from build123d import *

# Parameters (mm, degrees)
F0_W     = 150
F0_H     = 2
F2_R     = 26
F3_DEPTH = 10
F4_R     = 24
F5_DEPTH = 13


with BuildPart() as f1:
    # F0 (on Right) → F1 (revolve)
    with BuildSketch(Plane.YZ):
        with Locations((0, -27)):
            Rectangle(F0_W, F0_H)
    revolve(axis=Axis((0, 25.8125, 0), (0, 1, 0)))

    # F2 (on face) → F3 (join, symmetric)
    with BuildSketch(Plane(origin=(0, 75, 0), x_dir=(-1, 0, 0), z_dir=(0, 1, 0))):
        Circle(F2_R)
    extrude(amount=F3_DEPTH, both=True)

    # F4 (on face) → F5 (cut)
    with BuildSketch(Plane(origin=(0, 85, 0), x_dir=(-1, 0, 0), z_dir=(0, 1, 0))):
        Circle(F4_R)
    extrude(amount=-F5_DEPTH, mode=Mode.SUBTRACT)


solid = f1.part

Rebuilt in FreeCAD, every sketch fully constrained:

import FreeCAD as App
import Part
import Sketcher

V = App.Vector

doc = App.newDocument("Part")
body = doc.addObject("PartDesign::Body", "Body")

# Sketch on YZ plane
sketch1 = body.newObject("Sketcher::SketchObject", "Sketch")
sketch1.AttachmentSupport = (doc.getObject("YZ_Plane"), [""])
sketch1.MapMode = "FlatFace"
sketch1.addGeometry(Part.LineSegment(V(-75, -26, 0), V(-75, -28, 0)), False)
sketch1.addGeometry(Part.LineSegment(V(-75, -28, 0), V(75, -28, 0)), False)
sketch1.addGeometry(Part.LineSegment(V(75, -28, 0), V(75, -26, 0)), False)
sketch1.addGeometry(Part.LineSegment(V(75, -26, 0), V(-75, -26, 0)), False)
sketch1.addConstraint(Sketcher.Constraint("Coincident", 0, 2, 1, 1))
sketch1.addConstraint(Sketcher.Constraint("Coincident", 1, 2, 2, 1))
sketch1.addConstraint(Sketcher.Constraint("Coincident", 2, 2, 3, 1))
sketch1.addConstraint(Sketcher.Constraint("Coincident", 3, 2, 0, 1))
sketch1.addConstraint(Sketcher.Constraint("Vertical", 0))
sketch1.addConstraint(Sketcher.Constraint("Horizontal", 1))
sketch1.addConstraint(Sketcher.Constraint("Vertical", 2))
sketch1.addConstraint(Sketcher.Constraint("Horizontal", 3))
sketch1.addConstraint(Sketcher.Constraint("DistanceX", 1, 1, 1, 2, 150.0))
sketch1.addConstraint(Sketcher.Constraint("DistanceY", 0, 2, 0, 1, 2.0))
sketch1.addConstraint(Sketcher.Constraint("DistanceX", 0, 2, -1, 1, 75.0))
sketch1.addConstraint(Sketcher.Constraint("DistanceY", 0, 2, -1, 1, 28.0))
revolution = body.newObject("PartDesign::Revolution", "Revolution")
revolution.Profile = sketch1
revolution.ReferenceAxis = (sketch1, ["H_Axis"])
revolution.Angle = 360

# Sketch on XZ plane
sketch2 = body.newObject("Sketcher::SketchObject", "Sketch001")
sketch2.AttachmentSupport = (doc.getObject("XZ_Plane"), [""])
sketch2.MapMode = "FlatFace"
sketch2.AttachmentOffset = App.Placement(V(0, 0, -75), App.Rotation())
sketch2.addGeometry(Part.Circle(V(0, 0, 0), V(0, 0, 1), 26), False)
sketch2.addConstraint(Sketcher.Constraint("Coincident", 0, 3, -1, 1))
sketch2.addConstraint(Sketcher.Constraint("Diameter", 0, 52.0))
pad1 = body.newObject("PartDesign::Pad", "Pad")
pad1.Profile = sketch2
pad1.Length = 20
pad1.Midplane = True

# Sketch on XZ plane
sketch3 = body.newObject("Sketcher::SketchObject", "Sketch002")
sketch3.AttachmentSupport = (doc.getObject("XZ_Plane"), [""])
sketch3.MapMode = "FlatFace"
sketch3.AttachmentOffset = App.Placement(V(0, 0, -85), App.Rotation())
sketch3.addGeometry(Part.Circle(V(0, 0, 0), V(0, 0, 1), 24), False)
sketch3.addConstraint(Sketcher.Constraint("Coincident", 0, 3, -1, 1))
sketch3.addConstraint(Sketcher.Constraint("Diameter", 0, 48.0))
pocket1 = body.newObject("PartDesign::Pocket", "Pocket")
pocket1.Profile = sketch3
pocket1.Length = 13
pocket1.Reversed = True

doc.recompute()
